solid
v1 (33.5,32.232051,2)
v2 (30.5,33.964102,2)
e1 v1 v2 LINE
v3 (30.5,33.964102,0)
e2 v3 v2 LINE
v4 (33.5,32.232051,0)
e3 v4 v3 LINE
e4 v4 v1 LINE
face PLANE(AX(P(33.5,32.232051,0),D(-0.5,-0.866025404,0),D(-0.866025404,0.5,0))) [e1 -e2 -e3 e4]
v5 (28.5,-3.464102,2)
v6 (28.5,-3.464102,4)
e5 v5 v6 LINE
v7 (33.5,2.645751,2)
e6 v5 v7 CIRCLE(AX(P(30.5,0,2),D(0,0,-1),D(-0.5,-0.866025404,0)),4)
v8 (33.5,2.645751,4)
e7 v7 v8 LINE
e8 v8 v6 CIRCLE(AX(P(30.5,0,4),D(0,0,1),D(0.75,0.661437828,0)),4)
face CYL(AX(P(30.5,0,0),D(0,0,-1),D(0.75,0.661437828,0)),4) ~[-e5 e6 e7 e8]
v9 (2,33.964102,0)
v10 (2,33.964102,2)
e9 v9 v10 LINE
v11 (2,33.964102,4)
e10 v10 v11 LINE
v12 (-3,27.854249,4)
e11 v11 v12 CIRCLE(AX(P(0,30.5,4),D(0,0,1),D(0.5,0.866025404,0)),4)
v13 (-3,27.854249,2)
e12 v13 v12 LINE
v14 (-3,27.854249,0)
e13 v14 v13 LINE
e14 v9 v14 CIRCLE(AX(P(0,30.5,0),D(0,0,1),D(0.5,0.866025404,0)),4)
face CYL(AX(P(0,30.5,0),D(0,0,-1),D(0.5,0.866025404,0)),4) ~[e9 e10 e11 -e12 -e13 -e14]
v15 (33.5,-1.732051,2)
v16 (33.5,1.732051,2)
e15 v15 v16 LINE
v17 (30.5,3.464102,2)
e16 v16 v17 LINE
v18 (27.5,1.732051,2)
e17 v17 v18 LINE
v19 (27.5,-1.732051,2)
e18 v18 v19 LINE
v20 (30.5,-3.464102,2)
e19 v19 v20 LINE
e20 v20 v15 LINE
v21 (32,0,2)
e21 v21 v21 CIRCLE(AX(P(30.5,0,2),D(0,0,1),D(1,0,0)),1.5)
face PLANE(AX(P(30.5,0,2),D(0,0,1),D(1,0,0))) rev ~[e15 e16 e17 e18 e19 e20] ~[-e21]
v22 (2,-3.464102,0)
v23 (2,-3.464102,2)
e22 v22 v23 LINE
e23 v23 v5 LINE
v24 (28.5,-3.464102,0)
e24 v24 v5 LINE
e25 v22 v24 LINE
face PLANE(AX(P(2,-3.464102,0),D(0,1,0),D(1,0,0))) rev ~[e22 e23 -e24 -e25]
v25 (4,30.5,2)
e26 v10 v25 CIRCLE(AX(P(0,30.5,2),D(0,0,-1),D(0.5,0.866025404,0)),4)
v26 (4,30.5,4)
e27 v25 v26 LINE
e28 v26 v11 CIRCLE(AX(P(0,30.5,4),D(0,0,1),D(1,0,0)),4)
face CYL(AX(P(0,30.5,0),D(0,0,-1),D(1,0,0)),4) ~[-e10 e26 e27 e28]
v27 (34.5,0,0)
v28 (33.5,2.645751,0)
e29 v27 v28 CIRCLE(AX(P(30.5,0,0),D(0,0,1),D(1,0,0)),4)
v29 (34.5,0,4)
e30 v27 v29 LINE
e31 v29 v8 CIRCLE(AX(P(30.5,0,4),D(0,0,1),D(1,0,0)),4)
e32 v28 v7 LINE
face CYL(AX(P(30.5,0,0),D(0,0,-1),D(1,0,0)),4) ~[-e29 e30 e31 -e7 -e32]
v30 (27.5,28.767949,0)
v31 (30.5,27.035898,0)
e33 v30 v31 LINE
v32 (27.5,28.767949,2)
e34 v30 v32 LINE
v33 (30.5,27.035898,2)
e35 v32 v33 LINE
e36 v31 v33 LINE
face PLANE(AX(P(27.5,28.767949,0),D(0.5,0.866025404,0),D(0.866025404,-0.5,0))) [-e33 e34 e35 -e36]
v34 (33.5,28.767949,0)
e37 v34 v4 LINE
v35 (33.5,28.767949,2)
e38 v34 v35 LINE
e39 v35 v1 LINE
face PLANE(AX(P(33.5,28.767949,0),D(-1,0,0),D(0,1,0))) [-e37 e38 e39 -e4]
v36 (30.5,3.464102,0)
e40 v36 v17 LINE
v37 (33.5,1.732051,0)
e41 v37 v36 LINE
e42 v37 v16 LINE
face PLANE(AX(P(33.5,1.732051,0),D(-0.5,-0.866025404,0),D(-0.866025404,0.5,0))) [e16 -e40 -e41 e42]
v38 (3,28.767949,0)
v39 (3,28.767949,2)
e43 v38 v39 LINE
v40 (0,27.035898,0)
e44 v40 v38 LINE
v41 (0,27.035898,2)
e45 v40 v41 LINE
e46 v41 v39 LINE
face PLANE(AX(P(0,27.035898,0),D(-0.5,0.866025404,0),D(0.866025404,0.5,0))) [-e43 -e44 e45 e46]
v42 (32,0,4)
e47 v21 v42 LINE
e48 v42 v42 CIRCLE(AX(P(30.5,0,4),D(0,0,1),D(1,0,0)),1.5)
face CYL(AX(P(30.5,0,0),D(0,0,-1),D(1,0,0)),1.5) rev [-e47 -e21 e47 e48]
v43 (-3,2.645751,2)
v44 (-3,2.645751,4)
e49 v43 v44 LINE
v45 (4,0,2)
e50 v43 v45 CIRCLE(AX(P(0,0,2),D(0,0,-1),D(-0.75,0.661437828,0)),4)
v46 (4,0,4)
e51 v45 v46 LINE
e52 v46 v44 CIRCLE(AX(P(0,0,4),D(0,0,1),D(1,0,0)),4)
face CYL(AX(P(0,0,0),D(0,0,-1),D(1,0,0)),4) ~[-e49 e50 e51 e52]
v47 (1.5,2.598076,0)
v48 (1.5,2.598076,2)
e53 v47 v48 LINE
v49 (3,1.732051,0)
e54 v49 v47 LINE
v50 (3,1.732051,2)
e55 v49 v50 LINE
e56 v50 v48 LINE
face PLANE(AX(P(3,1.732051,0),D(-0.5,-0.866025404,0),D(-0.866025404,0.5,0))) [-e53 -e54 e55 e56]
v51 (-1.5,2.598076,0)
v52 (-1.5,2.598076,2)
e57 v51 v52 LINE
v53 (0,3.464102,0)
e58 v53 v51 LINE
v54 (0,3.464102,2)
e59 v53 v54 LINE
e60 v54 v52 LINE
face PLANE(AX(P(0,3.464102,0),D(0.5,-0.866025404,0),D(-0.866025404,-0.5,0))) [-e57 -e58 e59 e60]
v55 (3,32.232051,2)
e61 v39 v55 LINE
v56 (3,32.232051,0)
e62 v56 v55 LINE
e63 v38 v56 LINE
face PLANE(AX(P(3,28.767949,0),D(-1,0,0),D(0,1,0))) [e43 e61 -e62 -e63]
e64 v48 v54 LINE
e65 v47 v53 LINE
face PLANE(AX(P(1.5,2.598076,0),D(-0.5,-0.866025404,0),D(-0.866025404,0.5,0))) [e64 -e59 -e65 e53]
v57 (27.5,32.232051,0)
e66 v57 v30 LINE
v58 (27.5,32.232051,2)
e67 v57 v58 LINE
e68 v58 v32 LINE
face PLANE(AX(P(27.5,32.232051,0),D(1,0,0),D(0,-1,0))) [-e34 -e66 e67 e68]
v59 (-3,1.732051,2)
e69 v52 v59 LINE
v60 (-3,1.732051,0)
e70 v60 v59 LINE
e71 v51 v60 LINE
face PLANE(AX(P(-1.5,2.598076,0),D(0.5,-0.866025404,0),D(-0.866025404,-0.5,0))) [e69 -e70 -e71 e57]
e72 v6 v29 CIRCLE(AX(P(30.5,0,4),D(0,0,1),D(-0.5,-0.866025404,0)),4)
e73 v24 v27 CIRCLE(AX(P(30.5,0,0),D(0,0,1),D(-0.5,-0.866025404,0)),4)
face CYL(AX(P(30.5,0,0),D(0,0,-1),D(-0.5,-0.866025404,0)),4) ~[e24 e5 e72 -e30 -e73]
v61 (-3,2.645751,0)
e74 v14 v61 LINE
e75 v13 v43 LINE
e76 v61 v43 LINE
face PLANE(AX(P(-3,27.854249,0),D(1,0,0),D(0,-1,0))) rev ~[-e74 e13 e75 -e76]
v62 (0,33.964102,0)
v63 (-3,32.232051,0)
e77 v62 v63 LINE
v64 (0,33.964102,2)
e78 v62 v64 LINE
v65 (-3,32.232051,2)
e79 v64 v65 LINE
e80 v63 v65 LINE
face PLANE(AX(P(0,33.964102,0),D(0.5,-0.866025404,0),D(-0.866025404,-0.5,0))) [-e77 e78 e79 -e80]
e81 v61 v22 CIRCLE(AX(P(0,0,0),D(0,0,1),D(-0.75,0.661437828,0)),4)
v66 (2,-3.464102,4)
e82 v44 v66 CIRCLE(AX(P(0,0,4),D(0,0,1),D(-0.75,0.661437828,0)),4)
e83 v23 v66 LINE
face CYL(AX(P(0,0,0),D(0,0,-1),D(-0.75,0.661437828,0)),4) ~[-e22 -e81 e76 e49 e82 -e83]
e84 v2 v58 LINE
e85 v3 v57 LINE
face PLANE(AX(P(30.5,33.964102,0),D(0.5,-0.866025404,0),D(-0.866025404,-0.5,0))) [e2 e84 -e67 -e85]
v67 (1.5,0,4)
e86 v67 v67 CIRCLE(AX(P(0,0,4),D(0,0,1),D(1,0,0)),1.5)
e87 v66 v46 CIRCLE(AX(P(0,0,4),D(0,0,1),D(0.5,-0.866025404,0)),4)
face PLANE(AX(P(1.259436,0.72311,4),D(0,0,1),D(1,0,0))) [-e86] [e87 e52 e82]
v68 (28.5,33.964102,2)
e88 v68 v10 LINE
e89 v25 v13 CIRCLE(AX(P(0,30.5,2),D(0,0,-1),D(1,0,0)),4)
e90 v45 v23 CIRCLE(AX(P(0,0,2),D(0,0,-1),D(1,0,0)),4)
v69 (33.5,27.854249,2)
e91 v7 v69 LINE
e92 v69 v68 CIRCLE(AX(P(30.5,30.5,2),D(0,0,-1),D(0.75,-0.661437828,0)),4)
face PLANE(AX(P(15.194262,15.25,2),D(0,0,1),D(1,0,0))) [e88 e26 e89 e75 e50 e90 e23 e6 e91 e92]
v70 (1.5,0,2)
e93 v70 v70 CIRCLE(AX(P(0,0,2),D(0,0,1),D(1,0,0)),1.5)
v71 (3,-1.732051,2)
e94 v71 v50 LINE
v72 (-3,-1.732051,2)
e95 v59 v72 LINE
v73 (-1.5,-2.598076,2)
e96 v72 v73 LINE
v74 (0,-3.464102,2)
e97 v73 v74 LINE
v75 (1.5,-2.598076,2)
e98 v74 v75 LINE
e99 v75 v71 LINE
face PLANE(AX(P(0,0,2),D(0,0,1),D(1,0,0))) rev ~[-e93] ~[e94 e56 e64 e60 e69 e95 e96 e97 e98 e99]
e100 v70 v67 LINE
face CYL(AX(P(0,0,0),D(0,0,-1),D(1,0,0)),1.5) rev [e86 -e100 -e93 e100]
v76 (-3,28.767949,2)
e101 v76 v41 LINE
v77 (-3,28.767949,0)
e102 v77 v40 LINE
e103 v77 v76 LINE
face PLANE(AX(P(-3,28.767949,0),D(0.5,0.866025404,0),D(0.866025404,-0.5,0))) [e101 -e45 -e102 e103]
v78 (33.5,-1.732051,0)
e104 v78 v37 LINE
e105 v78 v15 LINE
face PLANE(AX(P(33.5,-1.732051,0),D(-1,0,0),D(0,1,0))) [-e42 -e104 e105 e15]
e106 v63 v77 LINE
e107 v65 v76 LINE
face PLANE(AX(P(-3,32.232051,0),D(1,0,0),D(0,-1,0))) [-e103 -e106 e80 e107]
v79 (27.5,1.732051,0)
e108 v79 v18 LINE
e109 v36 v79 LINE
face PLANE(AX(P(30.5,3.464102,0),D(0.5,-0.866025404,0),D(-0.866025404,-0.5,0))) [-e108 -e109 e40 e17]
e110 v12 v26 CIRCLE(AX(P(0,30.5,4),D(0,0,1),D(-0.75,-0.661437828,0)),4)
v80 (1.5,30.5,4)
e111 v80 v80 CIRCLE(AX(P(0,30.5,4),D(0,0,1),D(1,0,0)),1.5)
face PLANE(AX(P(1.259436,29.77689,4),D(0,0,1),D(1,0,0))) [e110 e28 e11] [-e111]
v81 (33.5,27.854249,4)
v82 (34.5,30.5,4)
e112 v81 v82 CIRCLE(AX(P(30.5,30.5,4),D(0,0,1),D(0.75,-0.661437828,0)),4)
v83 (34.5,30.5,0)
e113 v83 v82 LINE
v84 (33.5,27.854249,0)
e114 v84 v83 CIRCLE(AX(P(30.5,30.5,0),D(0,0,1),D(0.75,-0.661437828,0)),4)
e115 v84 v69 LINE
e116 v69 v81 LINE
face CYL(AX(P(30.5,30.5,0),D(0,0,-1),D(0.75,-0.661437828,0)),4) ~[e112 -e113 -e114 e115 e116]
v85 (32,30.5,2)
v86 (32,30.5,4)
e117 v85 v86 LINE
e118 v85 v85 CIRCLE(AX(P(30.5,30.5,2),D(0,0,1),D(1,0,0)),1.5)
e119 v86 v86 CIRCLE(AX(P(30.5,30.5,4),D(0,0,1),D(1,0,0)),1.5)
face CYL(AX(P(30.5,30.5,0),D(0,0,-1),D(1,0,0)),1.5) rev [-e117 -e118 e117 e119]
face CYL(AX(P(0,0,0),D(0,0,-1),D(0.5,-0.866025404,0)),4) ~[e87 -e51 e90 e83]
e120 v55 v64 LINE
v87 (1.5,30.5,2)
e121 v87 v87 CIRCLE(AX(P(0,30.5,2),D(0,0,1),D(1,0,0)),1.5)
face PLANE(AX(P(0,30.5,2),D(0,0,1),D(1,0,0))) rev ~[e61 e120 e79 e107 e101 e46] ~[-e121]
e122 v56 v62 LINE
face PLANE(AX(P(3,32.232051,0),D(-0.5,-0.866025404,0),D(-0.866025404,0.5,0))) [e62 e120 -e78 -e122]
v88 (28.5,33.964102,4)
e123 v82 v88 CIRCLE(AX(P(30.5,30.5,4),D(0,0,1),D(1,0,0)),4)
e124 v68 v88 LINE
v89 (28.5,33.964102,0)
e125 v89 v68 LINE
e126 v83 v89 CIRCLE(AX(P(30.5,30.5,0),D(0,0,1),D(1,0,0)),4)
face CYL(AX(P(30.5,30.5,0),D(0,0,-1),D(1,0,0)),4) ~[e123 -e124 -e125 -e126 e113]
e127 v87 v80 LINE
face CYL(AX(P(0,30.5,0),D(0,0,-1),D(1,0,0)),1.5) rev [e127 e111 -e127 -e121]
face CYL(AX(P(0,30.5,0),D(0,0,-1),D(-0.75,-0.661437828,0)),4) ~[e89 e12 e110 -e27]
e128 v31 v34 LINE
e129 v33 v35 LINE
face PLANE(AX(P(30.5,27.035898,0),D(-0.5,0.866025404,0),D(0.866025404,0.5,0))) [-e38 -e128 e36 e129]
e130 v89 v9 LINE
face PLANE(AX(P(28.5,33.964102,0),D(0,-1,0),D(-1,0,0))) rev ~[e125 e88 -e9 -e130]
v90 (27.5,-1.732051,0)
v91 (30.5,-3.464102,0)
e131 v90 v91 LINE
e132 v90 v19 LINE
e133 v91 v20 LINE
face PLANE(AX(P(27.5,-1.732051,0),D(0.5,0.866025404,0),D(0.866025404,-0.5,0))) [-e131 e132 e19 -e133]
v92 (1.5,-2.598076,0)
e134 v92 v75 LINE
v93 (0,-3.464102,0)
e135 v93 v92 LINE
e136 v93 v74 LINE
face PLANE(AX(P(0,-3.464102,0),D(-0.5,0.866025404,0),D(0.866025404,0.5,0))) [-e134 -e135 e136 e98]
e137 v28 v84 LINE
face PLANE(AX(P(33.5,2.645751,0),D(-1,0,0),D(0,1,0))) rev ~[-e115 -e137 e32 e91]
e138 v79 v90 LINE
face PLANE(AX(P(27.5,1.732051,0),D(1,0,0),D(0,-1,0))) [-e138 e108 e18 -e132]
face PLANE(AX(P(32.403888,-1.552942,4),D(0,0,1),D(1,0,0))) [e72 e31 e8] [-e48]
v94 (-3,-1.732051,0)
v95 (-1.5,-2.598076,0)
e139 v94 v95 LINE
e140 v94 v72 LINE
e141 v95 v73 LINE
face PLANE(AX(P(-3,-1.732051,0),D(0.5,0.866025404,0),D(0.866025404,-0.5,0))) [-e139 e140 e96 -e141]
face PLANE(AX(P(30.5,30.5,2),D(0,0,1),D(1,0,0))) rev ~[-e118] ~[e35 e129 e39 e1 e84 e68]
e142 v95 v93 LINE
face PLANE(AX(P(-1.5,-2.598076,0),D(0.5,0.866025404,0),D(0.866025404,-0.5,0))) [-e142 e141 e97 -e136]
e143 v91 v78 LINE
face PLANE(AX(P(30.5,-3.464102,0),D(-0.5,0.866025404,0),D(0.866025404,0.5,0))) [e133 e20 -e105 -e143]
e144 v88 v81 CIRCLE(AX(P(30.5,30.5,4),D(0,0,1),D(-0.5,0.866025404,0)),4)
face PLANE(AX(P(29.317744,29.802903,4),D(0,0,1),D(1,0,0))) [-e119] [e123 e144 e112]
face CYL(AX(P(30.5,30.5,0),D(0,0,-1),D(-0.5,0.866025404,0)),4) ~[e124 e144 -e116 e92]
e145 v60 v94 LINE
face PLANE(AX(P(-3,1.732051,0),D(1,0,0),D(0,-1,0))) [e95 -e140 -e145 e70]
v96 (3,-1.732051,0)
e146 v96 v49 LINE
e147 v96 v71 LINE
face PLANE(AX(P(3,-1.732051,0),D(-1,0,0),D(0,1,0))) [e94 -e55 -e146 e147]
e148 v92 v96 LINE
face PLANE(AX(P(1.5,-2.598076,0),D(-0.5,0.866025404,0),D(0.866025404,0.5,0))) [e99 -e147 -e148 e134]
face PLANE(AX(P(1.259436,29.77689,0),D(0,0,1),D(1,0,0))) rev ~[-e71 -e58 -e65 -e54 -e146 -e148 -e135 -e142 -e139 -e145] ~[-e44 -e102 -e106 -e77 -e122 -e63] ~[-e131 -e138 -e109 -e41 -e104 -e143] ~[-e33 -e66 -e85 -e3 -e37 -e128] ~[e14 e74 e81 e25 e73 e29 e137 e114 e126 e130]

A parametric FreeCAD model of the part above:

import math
import FreeCAD as App
import Part
import Sketcher

V = App.Vector
Q = App.Units.Quantity


def add_polygon(sketch, points):
    """Adds a closed chain of lines whose ends are joined by coincident constraints."""
    first, n = sketch.GeometryCount, len(points)
    for a, b in zip(points, points[1:] + points[:1]):
        sketch.addGeometry(Part.LineSegment(App.Vector(*a, 0), App.Vector(*b, 0)), False)
    for i in range(n):
        sketch.addConstraint(Sketcher.Constraint("Coincident", first + i, 2, first + (i + 1) % n, 1))

doc = App.newDocument("Part")
body = doc.addObject("PartDesign::Body", "Body")

sketch1 = body.newObject("Sketcher::SketchObject", "Sketch")
sketch1.AttachmentSupport = (doc.getObject("XY_Plane"), [""])
sketch1.MapMode = "FlatFace"
sketch1.addGeometry([
    Part.ArcOfCircle(Part.Circle(V(0, 0, 0), V(0, 0, 1), 4), math.radians(0), math.radians(139)),
    Part.ArcOfCircle(Part.Circle(V(0, 0, 0), V(0, 0, 1), 4), math.radians(-60), math.radians(0)),
    Part.LineSegment(V(2, -3.5, 0), V(28.5, -3.5, 0)),
    Part.ArcOfCircle(Part.Circle(V(30.5, 0, 0), V(0, 0, 1), 4), math.radians(41), math.radians(240)),
    Part.LineSegment(V(33.5, 2.6, 0), V(33.5, 27.9, 0)),
    Part.ArcOfCircle(Part.Circle(V(30.5, 30.5, 0), V(0, 0, 1), 4), math.radians(120), math.radians(319)),
    Part.LineSegment(V(28.5, 34, 0), V(2, 34, 0)),
    Part.ArcOfCircle(Part.Circle(V(0, 30.5, 0), V(0, 0, 1), 4), math.radians(0), math.radians(60)),
    Part.ArcOfCircle(Part.Circle(V(0, 30.5, 0), V(0, 0, 1), 4), math.radians(-139), math.radians(0)),
    Part.LineSegment(V(-3, 27.9, 0), V(-3, 2.6, 0)),
], False)
sketch1.addConstraint([
    Sketcher.Constraint("Tangent", 0, 1, 1, 2),
    Sketcher.Constraint("Coincident", 1, 1, 2, 1),
    Sketcher.Constraint("Coincident", 2, 2, 3, 2),
    Sketcher.Constraint("Coincident", 3, 1, 4, 1),
    Sketcher.Constraint("Coincident", 4, 2, 5, 2),
    Sketcher.Constraint("Coincident", 5, 1, 6, 1),
    Sketcher.Constraint("Coincident", 6, 2, 7, 2),
    Sketcher.Constraint("Tangent", 7, 1, 8, 2),
    Sketcher.Constraint("Coincident", 8, 1, 9, 1),
    Sketcher.Constraint("Coincident", 9, 2, 0, 2),
    Sketcher.Constraint("Horizontal", 2),
    Sketcher.Constraint("Vertical", 4),
    Sketcher.Constraint("Horizontal", 6),
    Sketcher.Constraint("Vertical", 9),
    Sketcher.Constraint("Coincident", 0, 3, -1, 1),
    Sketcher.Constraint("Equal", 0, 1),
    Sketcher.Constraint("Equal", 1, 3),
    Sketcher.Constraint("Equal", 3, 5),
    Sketcher.Constraint("Equal", 5, 7),
    Sketcher.Constraint("Equal", 7, 8),
    Sketcher.Constraint("PointOnObject", 3, 3, -1),
    Sketcher.Constraint("PointOnObject", 7, 3, -2),
    Sketcher.Constraint("PointOnObject", 0, 1, -1),
    Sketcher.Constraint("Horizontal", 5, 3, 7, 3),
    Sketcher.Constraint("Horizontal", 8, 3, 7, 1),
    Sketcher.Constraint("Horizontal", 4, 2, 8, 1),
    Sketcher.Constraint("Horizontal", 3, 1, 9, 2),
    Sketcher.Constraint("Vertical", 2, 2, 5, 1),
    Sketcher.Constraint("Radius", 0, 4.0),
    Sketcher.Constraint("DistanceX", 2, 1, 2, 2, 26.5),
    Sketcher.Constraint("DistanceX", -1, 1, 1, 1, 2.0),
    Sketcher.Constraint("DistanceX", 8, 1, -1, 1, 3.0),
    Sketcher.Constraint("DistanceY", -1, 1, 5, 3, 30.5),
])
pad1 = body.newObject("PartDesign::Pad", "Pad")
pad1.Profile = sketch1
pad1.Length = 2

sketch2 = body.newObject("Sketcher::SketchObject", "Sketch001")
sketch2.AttachmentSupport = (doc.getObject("XY_Plane"), [""])
sketch2.MapMode = "FlatFace"
sketch2.addGeometry(Part.ArcOfCircle(Part.Circle(V(0, 30.5, 0), V(0, 0, 1), 4), math.radians(-139), math.radians(0)), False)
sketch2.addGeometry(Part.ArcOfCircle(Part.Circle(V(0, 30.5, 0), V(0, 0, 1), 4), math.radians(0), math.radians(60)), False)
sketch2.addGeometry(Part.ArcOfCircle(Part.Circle(V(0, 30.5, 0), V(0, 0, 1), 4), math.radians(60), math.radians(221)), False)
add_polygon(sketch2, [(0, 34), (3, 32.2), (3, 28.8), (0, 27), (-3, 28.8), (-3, 32.2)])
sketch2.addGeometry(Part.ArcOfCircle(Part.Circle(V(0, 0, 0), V(0, 0, 1), 4), math.radians(-60), math.radians(0)), False)
sketch2.addGeometry(Part.ArcOfCircle(Part.Circle(V(0, 0, 0), V(0, 0, 1), 4), math.radians(0), math.radians(139)), False)
sketch2.addGeometry(Part.ArcOfCircle(Part.Circle(V(0, 0, 0), V(0, 0, 1), 4), math.radians(139), math.radians(300)), False)
add_polygon(sketch2, [(-3, 1.7), (-1.5, 2.6), (0, 3.5), (1.5, 2.6), (3, 1.7), (3, -1.7), (1.5, -2.6), (0, -3.5), (-1.5, -2.6), (-3, -1.7)])
sketch2.addGeometry(Part.ArcOfCircle(Part.Circle(V(30.5, 30.5, 0), V(0, 0, 1), 4), math.radians(120), math.radians(319)), False)
sketch2.addGeometry(Part.ArcOfCircle(Part.Circle(V(30.5, 30.5, 0), V(0, 0, 1), 4), math.radians(-41), math.radians(0)), False)
sketch2.addGeometry(Part.ArcOfCircle(Part.Circle(V(30.5, 30.5, 0), V(0, 0, 1), 4), math.radians(0), math.radians(120)), False)
add_polygon(sketch2, [(33.5, 28.8), (30.5, 27), (27.5, 28.8), (27.5, 32.2), (30.5, 34), (33.5, 32.2)])
sketch2.addGeometry(Part.ArcOfCircle(Part.Circle(V(30.5, 0, 0), V(0, 0, 1), 4), math.radians(-120), math.radians(0)), False)
sketch2.addGeometry(Part.ArcOfCircle(Part.Circle(V(30.5, 0, 0), V(0, 0, 1), 4), math.radians(0), math.radians(41)), False)
sketch2.addGeometry(Part.ArcOfCircle(Part.Circle(V(30.5, 0, 0), V(0, 0, 1), 4), math.radians(41), math.radians(240)), False)
add_polygon(sketch2, [(33.5, 1.7), (33.5, -1.7), (30.5, -3.5), (27.5, -1.7), (27.5, 1.7), (30.5, 3.5)])
sketch2.addConstraint([
    Sketcher.Constraint("Tangent", 0, 2, 1, 1),
    Sketcher.Constraint("Tangent", 1, 2, 2, 1),
    Sketcher.Constraint("Tangent", 2, 2, 0, 1),
    Sketcher.Constraint("Tangent", 9, 2, 10, 1),
    Sketcher.Constraint("Tangent", 10, 2, 11, 1),
    Sketcher.Constraint("Tangent", 11, 2, 9, 1),
    Sketcher.Constraint("Tangent", 22, 2, 23, 1),
    Sketcher.Constraint("Tangent", 23, 2, 24, 1),
    Sketcher.Constraint("Tangent", 24, 2, 22, 1),
    Sketcher.Constraint("Tangent", 31, 2, 32, 1),
    Sketcher.Constraint("Tangent", 32, 2, 33, 1),
    Sketcher.Constraint("Tangent", 33, 2, 31, 1),
    Sketcher.Constraint("Vertical", 4),
    Sketcher.Constraint("Vertical", 7),
    Sketcher.Constraint("Vertical", 16),
    Sketcher.Constraint("Vertical", 21),
    Sketcher.Constraint("Vertical", 27),
    Sketcher.Constraint("Vertical", 30),
    Sketcher.Constraint("Vertical", 34),
    Sketcher.Constraint("Vertical", 37),
    Sketcher.Constraint("Coincident", 9, 3, -1, 1),
    Sketcher.Constraint("Equal", 2, 9),
    Sketcher.Constraint("Equal", 11, 22),
    Sketcher.Constraint("Equal", 24, 31),
    Sketcher.Constraint("Symmetric", 12, 2, 17, 2, -1, 1),
    Sketcher.Constraint("Symmetric", 13, 2, 18, 2, -1, 1),
    Sketcher.Constraint("Symmetric", 14, 2, 19, 2, -1, 1),
    Sketcher.Constraint("Symmetric", 15, 2, 20, 2, -1, 1),
    Sketcher.Constraint("Symmetric", 4, 2, 6, 2, -2),
    Sketcher.Constraint("Symmetric", 12, 2, 14, 2, -2),
    Sketcher.Constraint("Symmetric", 35, 2, 38, 2, -1),
    Sketcher.Constraint("PointOnObject", 0, 3, -2),
    Sketcher.Constraint("PointOnObject", 31, 3, -1),
    Sketcher.Constraint("PointOnObject", 5, 2, -2),
    Sketcher.Constraint("PointOnObject", 8, 2, -2),
    Sketcher.Constraint("PointOnObject", 9, 2, -1),
    Sketcher.Constraint("PointOnObject", 13, 2, -2),
    Sketcher.Constraint("PointOnObject", 31, 2, -1),
    Sketcher.Constraint("Parallel", 3, 6),
    Sketcher.Constraint("Parallel", 5, 8),
    Sketcher.Constraint("Parallel", 8, 12),
    Sketcher.Constraint("Parallel", 12, 13),
    Sketcher.Constraint("Parallel", 14, 15),
    Sketcher.Constraint("Parallel", 13, 17),
    Sketcher.Constraint("Parallel", 18, 25),
    Sketcher.Constraint("Parallel", 20, 26),
    Sketcher.Constraint("Parallel", 25, 28),
    Sketcher.Constraint("Parallel", 26, 29),
    Sketcher.Constraint("Parallel", 28, 35),
    Sketcher.Constraint("Parallel", 29, 36),
    Sketcher.Constraint("Parallel", 35, 38),
    Sketcher.Constraint("Parallel", 36, 39),
    Sketcher.Constraint("Horizontal", 2, 3, 22, 3),
    Sketcher.Constraint("Horizontal", 24, 3, 0, 2),
    Sketcher.Constraint("Horizontal", 1, 2, 8, 2),
    Sketcher.Constraint("Horizontal", 11, 2, 18, 2),
    Sketcher.Constraint("Horizontal", 2, 2, 22, 2),
    Sketcher.Constraint("Horizontal", 0, 2, 23, 2),
    Sketcher.Constraint("Horizontal", 8, 2, 24, 2),
    Sketcher.Constraint("Horizontal", 5, 2, 25, 2),
    Sketcher.Constraint("Horizontal", 6, 2, 26, 2),
    Sketcher.Constraint("Horizontal", 7, 2, 27, 2),
    Sketcher.Constraint("Horizontal", 24, 2, 28, 2),
    Sketcher.Constraint("Horizontal", 27, 2, 29, 2),
    Sketcher.Constraint("Horizontal", 10, 2, 32, 2),
    Sketcher.Constraint("Horizontal", 18, 2, 33, 2),
    Sketcher.Constraint("Horizontal", 20, 2, 34, 2),
    Sketcher.Constraint("Horizontal", 33, 2, 35, 2),
    Sketcher.Constraint("Horizontal", 34, 2, 36, 2),
    Sketcher.Constraint("Vertical", 24, 3, 31, 3),
    Sketcher.Constraint("Vertical", 2, 2, 6, 2),
    Sketcher.Constraint("Vertical", 7, 2, 10, 2),
    Sketcher.Constraint("Vertical", 1, 2, 11, 2),
    Sketcher.Constraint("Vertical", 4, 2, 15, 2),
    Sketcher.Constraint("Vertical", 33, 3, 25, 2),
    Sketcher.Constraint("Vertical", 32, 2, 34, 2),
    Sketcher.Constraint("Equal", 7, 16),
    Sketcher.Constraint("Equal", 12, 13),
    Sketcher.Constraint("Radius", 0, 4.0),
    Sketcher.Constraint("Angle", 3, Q("-30 deg")),
    Sketcher.Constraint("DistanceX", -1, 1, 1, 2, 2.0),
    Sketcher.Constraint("DistanceX", 2, 2, -1, 1, 3.0),
    Sketcher.Constraint("DistanceY", -1, 1, 0, 3, 30.5),
    Sketcher.Constraint("DistanceX", -1, 1, 22, 3, 30.5),
])
pad2 = body.newObject("PartDesign::Pad", "Pad001")
pad2.Profile = sketch2
pad2.Length = 4

sketch3 = body.newObject("Sketcher::SketchObject", "Sketch002")
sketch3.AttachmentSupport = (doc.getObject("XY_Plane"), [""])
sketch3.MapMode = "FlatFace"
sketch3.addGeometry([
    Part.ArcOfCircle(Part.Circle(V(0, 0, 0), V(0, 0, 1), 4), math.radians(-60), math.radians(0)),
    Part.ArcOfCircle(Part.Circle(V(0, 0, 0), V(0, 0, 1), 4), math.radians(0), math.radians(139)),
    Part.ArcOfCircle(Part.Circle(V(0, 0, 0), V(0, 0, 1), 4), math.radians(139), math.radians(300)),
    Part.Circle(V(0, 0, 0), V(0, 0, 1), 1.5),
    Part.ArcOfCircle(Part.Circle(V(30.5, 0, 0), V(0, 0, 1), 4), math.radians(41), math.radians(240)),
    Part.ArcOfCircle(Part.Circle(V(30.5, 0, 0), V(0, 0, 1), 4), math.radians(-120), math.radians(0)),
    Part.ArcOfCircle(Part.Circle(V(30.5, 0, 0), V(0, 0, 1), 4), math.radians(0), math.radians(41)),
    Part.Circle(V(30.5, 0, 0), V(0, 0, 1), 1.5),
    Part.ArcOfCircle(Part.Circle(V(30.5, 30.5, 0), V(0, 0, 1), 4), math.radians(0), math.radians(120)),
    Part.ArcOfCircle(Part.Circle(V(30.5, 30.5, 0), V(0, 0, 1), 4), math.radians(120), math.radians(319)),
    Part.ArcOfCircle(Part.Circle(V(30.5, 30.5, 0), V(0, 0, 1), 4), math.radians(-41), math.radians(0)),
    Part.Circle(V(30.5, 30.5, 0), V(0, 0, 1), 1.5),
    Part.ArcOfCircle(Part.Circle(V(0, 30.5, 0), V(0, 0, 1), 4), math.radians(60), math.radians(221)),
    Part.ArcOfCircle(Part.Circle(V(0, 30.5, 0), V(0, 0, 1), 4), math.radians(-139), math.radians(0)),
    Part.ArcOfCircle(Part.Circle(V(0, 30.5, 0), V(0, 0, 1), 4), math.radians(0), math.radians(60)),
    Part.Circle(V(0, 30.5, 0), V(0, 0, 1), 1.5),
], False)
sketch3.addConstraint([
    Sketcher.Constraint("Tangent", 0, 2, 1, 1),
    Sketcher.Constraint("Tangent", 1, 2, 2, 1),
    Sketcher.Constraint("Tangent", 2, 2, 0, 1),
    Sketcher.Constraint("Tangent", 4, 2, 5, 1),
    Sketcher.Constraint("Tangent", 5, 2, 6, 1),
    Sketcher.Constraint("Tangent", 6, 2, 4, 1),
    Sketcher.Constraint("Tangent", 8, 2, 9, 1),
    Sketcher.Constraint("Tangent", 9, 2, 10, 1),
    Sketcher.Constraint("Tangent", 10, 2, 8, 1),
    Sketcher.Constraint("Tangent", 12, 2, 13, 1),
    Sketcher.Constraint("Tangent", 13, 2, 14, 1),
    Sketcher.Constraint("Tangent", 14, 2, 12, 1),
    Sketcher.Constraint("Coincident", 0, 3, -1, 1),
    Sketcher.Constraint("Coincident", 3, 3, -1, 1),
    Sketcher.Constraint("Coincident", 7, 3, 4, 3),
    Sketcher.Constraint("Coincident", 11, 3, 8, 3),
    Sketcher.Constraint("Coincident", 15, 3, 12, 3),
    Sketcher.Constraint("Equal", 2, 4),
    Sketcher.Constraint("Equal", 3, 7),
    Sketcher.Constraint("Equal", 6, 8),
    Sketcher.Constraint("Equal", 7, 11),
    Sketcher.Constraint("Equal", 10, 12),
    Sketcher.Constraint("Equal", 11, 15),
    Sketcher.Constraint("PointOnObject", 4, 3, -1),
    Sketcher.Constraint("PointOnObject", 12, 3, -2),
    Sketcher.Constraint("PointOnObject", 0, 2, -1),
    Sketcher.Constraint("PointOnObject", 5, 2, -1),
    Sketcher.Constraint("Horizontal", 11, 3, 12, 3),
    Sketcher.Constraint("Horizontal", 2, 2, 4, 2),
    Sketcher.Constraint("Horizontal", 1, 2, 6, 2),
    Sketcher.Constraint("Horizontal", 15, 3, 10, 2),
    Sketcher.Constraint("Horizontal", 9, 2, 12, 2),
    Sketcher.Constraint("Horizontal", 10, 2, 13, 2),
    Sketcher.Constraint("Horizontal", 8, 2, 14, 2),
    Sketcher.Constraint("Vertical", 7, 3, 8, 3),
    Sketcher.Constraint("Vertical", 4, 2, 8, 2),
    Sketcher.Constraint("Vertical", 6, 2, 9, 2),
    Sketcher.Constraint("Diameter", 3, 3.0),
    Sketcher.Constraint("Radius", 0, 4.0),
    Sketcher.Constraint("DistanceX", 1, 2, -1, 1, 3.0),
    Sketcher.Constraint("DistanceX", -1, 1, 2, 2, 2.0),
    Sketcher.Constraint("DistanceX", -1, 1, 4, 3, 30.5),
    Sketcher.Constraint("DistanceY", -1, 1, 8, 3, 30.5),
])
pad3 = body.newObject("PartDesign::Pad", "Pad002")
pad3.Profile = sketch3
pad3.Length = 4

sketch4 = body.newObject("Sketcher::SketchObject", "Sketch003")
sketch4.AttachmentSupport = (doc.getObject("XY_Plane"), [""])
sketch4.MapMode = "FlatFace"
add_polygon(sketch4, [(-3, 32.2), (-3, 28.8), (0, 27), (3, 28.8), (3, 32.2), (0, 34)])
sketch4.addGeometry(Part.Circle(V(0, 30.5, 0), V(0, 0, 1), 1.5), False)
add_polygon(sketch4, [(33.5, 32.2), (30.5, 34), (27.5, 32.2), (27.5, 28.8), (30.5, 27), (33.5, 28.8)])
sketch4.addGeometry(Part.Circle(V(30.5, 30.5, 0), V(0, 0, 1), 1.5), False)
add_polygon(sketch4, [(27.5, -1.7), (30.5, -3.5), (33.5, -1.7), (33.5, 1.7), (30.5, 3.5), (27.5, 1.7)])
sketch4.addGeometry(Part.Circle(V(30.5, 0, 0), V(0, 0, 1), 1.5), False)
add_polygon(sketch4, [(-1.5, 2.6), (-3, 1.7), (-3, -1.7), (-1.5, -2.6), (0, -3.5), (1.5, -2.6), (3, -1.7), (3, 1.7), (1.5, 2.6), (0, 3.5)])
sketch4.addGeometry(Part.Circle(V(0, 0, 0), V(0, 0, 1), 1.5), False)
sketch4.addConstraint([
    Sketcher.Constraint("Vertical", 0),
    Sketcher.Constraint("Vertical", 3),
    Sketcher.Constraint("Vertical", 9),
    Sketcher.Constraint("Vertical", 12),
    Sketcher.Constraint("Vertical", 16),
    Sketcher.Constraint("Vertical", 19),
    Sketcher.Constraint("Vertical", 22),
    Sketcher.Constraint("Vertical", 27),
    Sketcher.Constraint("Coincident", 31, 3, -1, 1),
    Sketcher.Constraint("Equal", 6, 13),
    Sketcher.Constraint("Equal", 13, 20),
    Sketcher.Constraint("Equal", 20, 31),
    Sketcher.Constraint("Symmetric", 21, 2, 26, 2, -1, 1),
    Sketcher.Constraint("Symmetric", 23, 2, 28, 2, -1, 1),
    Sketcher.Constraint("Symmetric", 24, 2, 29, 2, -1, 1),
    Sketcher.Constraint("Symmetric", 25, 2, 30, 2, -1, 1),
    Sketcher.Constraint("Symmetric", 0, 2, 2, 2, -2),
    Sketcher.Constraint("Symmetric", 23, 2, 25, 2, -2),
    Sketcher.Constraint("Symmetric", 14, 2, 17, 2, -1),
    Sketcher.Constraint("PointOnObject", 6, 3, -2),
    Sketcher.Constraint("PointOnObject", 20, 3, -1),
    Sketcher.Constraint("PointOnObject", 1, 2, -2),
    Sketcher.Constraint("PointOnObject", 4, 2, -2),
    Sketcher.Constraint("PointOnObject", 24, 2, -2),
    Sketcher.Constraint("Parallel", 1, 4),
    Sketcher.Constraint("Parallel", 2, 5),
    Sketcher.Constraint("Parallel", 4, 7),
    Sketcher.Constraint("Parallel", 5, 8),
    Sketcher.Constraint("Parallel", 7, 10),
    Sketcher.Constraint("Parallel", 8, 11),
    Sketcher.Constraint("Parallel", 10, 14),
    Sketcher.Constraint("Parallel", 11, 15),
    Sketcher.Constraint("Parallel", 14, 17),
    Sketcher.Constraint("Parallel", 15, 18),
    Sketcher.Constraint("Parallel", 18, 21),
    Sketcher.Constraint("Parallel", 17, 23),
    Sketcher.Constraint("Parallel", 23, 24),
    Sketcher.Constraint("Parallel", 24, 28),
    Sketcher.Constraint("Horizontal", 6, 3, 13, 3),
    Sketcher.Constraint("Horizontal", 4, 2, 7, 2),
    Sketcher.Constraint("Horizontal", 5, 2, 8, 2),
    Sketcher.Constraint("Horizontal", 2, 2, 9, 2),
    Sketcher.Constraint("Horizontal", 1, 2, 10, 2),
    Sketcher.Constraint("Horizontal", 9, 2, 11, 2),
    Sketcher.Constraint("Horizontal", 16, 2, 18, 2),
    Sketcher.Constraint("Horizontal", 18, 2, 21, 2),
    Sketcher.Constraint("Horizontal", 14, 2, 24, 2),
    Sketcher.Constraint("Vertical", 13, 3, 20, 3),
    Sketcher.Constraint("Vertical", 20, 3, 7, 2),
    Sketcher.Constraint("Vertical", 10, 2, 14, 2),
    Sketcher.Constraint("Vertical", 12, 2, 15, 2),
    Sketcher.Constraint("Equal", 12, 16),
    Sketcher.Constraint("Equal", 23, 24),
    Sketcher.Constraint("Diameter", 6, 3.0),
    Sketcher.Constraint("Angle", 1, Q("-30 deg")),
    Sketcher.Constraint("DistanceX", 0, 2, -1, 1, 3.0),
    Sketcher.Constraint("DistanceX", 23, 2, 19, 2, 29.0),
    Sketcher.Constraint("DistanceY", -1, 1, 6, 3, 30.5),
    Sketcher.Constraint("DistanceY", 14, 2, 10, 2, 30.5),
    Sketcher.Constraint("DistanceY", 0, 2, 0, 1, 3.464102),
])
pocket1 = body.newObject("PartDesign::Pocket", "Pocket")
pocket1.Profile = sketch4
pocket1.Length = 2
pocket1.Reversed = True

doc.recompute()
